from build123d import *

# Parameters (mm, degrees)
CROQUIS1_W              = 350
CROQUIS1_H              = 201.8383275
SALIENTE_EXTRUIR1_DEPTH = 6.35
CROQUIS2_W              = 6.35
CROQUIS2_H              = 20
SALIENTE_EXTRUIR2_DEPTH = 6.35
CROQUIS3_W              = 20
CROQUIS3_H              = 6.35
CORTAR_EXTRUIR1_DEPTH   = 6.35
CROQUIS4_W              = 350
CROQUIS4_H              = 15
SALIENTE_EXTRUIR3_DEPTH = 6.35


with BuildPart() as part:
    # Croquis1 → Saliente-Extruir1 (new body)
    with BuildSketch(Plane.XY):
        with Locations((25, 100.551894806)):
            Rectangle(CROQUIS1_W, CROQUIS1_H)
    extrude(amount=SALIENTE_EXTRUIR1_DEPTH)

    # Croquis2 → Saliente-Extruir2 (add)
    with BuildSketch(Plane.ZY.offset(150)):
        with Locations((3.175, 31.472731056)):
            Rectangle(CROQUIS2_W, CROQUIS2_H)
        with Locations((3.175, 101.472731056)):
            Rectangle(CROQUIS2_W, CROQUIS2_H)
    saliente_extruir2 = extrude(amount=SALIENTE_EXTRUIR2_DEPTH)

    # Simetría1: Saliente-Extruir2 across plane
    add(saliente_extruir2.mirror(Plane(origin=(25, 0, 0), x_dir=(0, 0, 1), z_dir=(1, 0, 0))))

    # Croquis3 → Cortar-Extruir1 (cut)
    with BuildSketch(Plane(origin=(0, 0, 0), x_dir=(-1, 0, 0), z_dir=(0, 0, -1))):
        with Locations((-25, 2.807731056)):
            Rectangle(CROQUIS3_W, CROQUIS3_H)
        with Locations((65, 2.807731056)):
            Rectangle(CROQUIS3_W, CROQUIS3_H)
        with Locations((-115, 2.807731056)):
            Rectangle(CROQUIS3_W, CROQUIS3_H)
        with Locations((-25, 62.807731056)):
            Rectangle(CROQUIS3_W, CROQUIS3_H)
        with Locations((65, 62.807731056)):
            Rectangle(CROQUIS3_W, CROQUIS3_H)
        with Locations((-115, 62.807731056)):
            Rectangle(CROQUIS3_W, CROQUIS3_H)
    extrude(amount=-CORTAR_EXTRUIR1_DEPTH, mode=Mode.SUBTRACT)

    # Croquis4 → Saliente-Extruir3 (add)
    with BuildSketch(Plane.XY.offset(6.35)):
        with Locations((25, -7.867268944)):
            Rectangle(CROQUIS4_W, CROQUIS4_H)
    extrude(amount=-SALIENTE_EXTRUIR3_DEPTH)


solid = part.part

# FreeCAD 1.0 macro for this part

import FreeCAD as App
import Part
import Sketcher

V = App.Vector
Q = App.Units.Quantity

doc = App.newDocument("Part")
params = doc.addObject("Spreadsheet::Sheet", "Params")
for row, (alias, value) in enumerate([
    ("sketch1_width", "350 mm"),
    ("pad1_length", "6.35 mm"),
    ("sketch2_width", "20 mm"),
    ("sketch2_height", "6.35 mm"),
    ("pad2_length", "6.35 mm"),
    ("sketch3_width", "20 mm"),
    ("sketch3_height", "6.35 mm"),
    ("pocket1_length", "6.35 mm"),
    ("sketch4_width", "350 mm"),
    ("sketch4_height", "15 mm"),
    ("pad3_length", "6.35 mm"),
], start=1):
    params.set(f"A{row}", alias)
    params.set(f"B{row}", "=" + value)
    params.setAlias(f"B{row}", alias)

body = doc.addObject("PartDesign::Body", "Body")

# Sketch on XY plane
sketch1 = body.newObject("Sketcher::SketchObject", "Sketch")
sketch1.AttachmentSupport = (doc.getObject("XY_Plane"), [""])
sketch1.MapMode = "FlatFace"
sketch1.addGeometry(Part.LineSegment(V(-150, 201, 0), V(-150, 0, 0)), False)
sketch1.addGeometry(Part.LineSegment(V(-150, 0, 0), V(200, 0, 0)), False)
sketch1.addGeometry(Part.LineSegment(V(200, 0, 0), V(200, 201, 0)), False)
sketch1.addGeometry(Part.LineSegment(V(200, 201, 0), V(-150, 201, 0)), False)
sketch1.addConstraint(Sketcher.Constraint("Coincident", 0, 2, 1, 1))
sketch1.addConstraint(Sketcher.Constraint("Coincident", 1, 2, 2, 1))
sketch1.addConstraint(Sketcher.Constraint("Coincident", 2, 2, 3, 1))
sketch1.addConstraint(Sketcher.Constraint("Coincident", 3, 2, 0, 1))
sketch1.addConstraint(Sketcher.Constraint("Vertical", 0))
sketch1.addConstraint(Sketcher.Constraint("Horizontal", 1))
sketch1.addConstraint(Sketcher.Constraint("Vertical", 2))
sketch1.addConstraint(Sketcher.Constraint("Horizontal", 3))
sketch1.addConstraint(Sketcher.Constraint("DistanceX", 1, 1, 1, 2, Q("350 mm")))
sketch1.addConstraint(Sketcher.Constraint("DistanceX", 0, 2, -1, 1, Q("150 mm")))
sketch1.addConstraint(Sketcher.Constraint("DistanceY", 0, 2, 0, 1, Q("201.838327 mm")))
sketch1.addConstraint(Sketcher.Constraint("DistanceY", 0, 2, -1, 1, Q("0.367269 mm")))
sketch1.setExpression("Constraints[8]", "Params.sketch1_width")
pad1 = body.newObject("PartDesign::Pad", "Pad")
pad1.Profile = sketch1
pad1.setExpression("Length", "Params.pad1_length")

# Sketch on YZ plane
sketch2 = body.newObject("Sketcher::SketchObject", "Sketch001")
sketch2.AttachmentSupport = (doc.getObject("YZ_Plane"), [""])
sketch2.MapMode = "FlatFace"
sketch2.AttachmentOffset = App.Placement(V(0, 0, -150), App.Rotation())
sketch2.addGeometry(Part.LineSegment(V(41, 0, 0), V(21, 0, 0)), False)
sketch2.addGeometry(Part.LineSegment(V(21, 0, 0), V(21, 6, 0)), False)
sketch2.addGeometry(Part.LineSegment(V(21, 6, 0), V(41, 6, 0)), False)
sketch2.addGeometry(Part.LineSegment(V(41, 6, 0), V(41, 0, 0)), False)
sketch2.addGeometry(Part.LineSegment(V(111, 0, 0), V(91, 0, 0)), False)
sketch2.addGeometry(Part.LineSegment(V(91, 0, 0), V(91, 6, 0)), False)
sketch2.addGeometry(Part.LineSegment(V(91, 6, 0), V(111, 6, 0)), False)
sketch2.addGeometry(Part.LineSegment(V(111, 6, 0), V(111, 0, 0)), False)
sketch2.addConstraint(Sketcher.Constraint("Coincident", 0, 2, 1, 1))
sketch2.addConstraint(Sketcher.Constraint("Coincident", 1, 2, 2, 1))
sketch2.addConstraint(Sketcher.Constraint("Coincident", 2, 2, 3, 1))
sketch2.addConstraint(Sketcher.Constraint("Coincident", 3, 2, 0, 1))
sketch2.addConstraint(Sketcher.Constraint("Coincident", 4, 2, 5, 1))
sketch2.addConstraint(Sketcher.Constraint("Coincident", 5, 2, 6, 1))
sketch2.addConstraint(Sketcher.Constraint("Coincident", 6, 2, 7, 1))
sketch2.addConstraint(Sketcher.Constraint("Coincident", 7, 2, 4, 1))
sketch2.addConstraint(Sketcher.Constraint("Horizontal", 0))
sketch2.addConstraint(Sketcher.Constraint("Vertical", 1))
sketch2.addConstraint(Sketcher.Constraint("Horizontal", 2))
sketch2.addConstraint(Sketcher.Constraint("Vertical", 3))
sketch2.addConstraint(Sketcher.Constraint("Horizontal", 4))
sketch2.addConstraint(Sketcher.Constraint("Vertical", 5))
sketch2.addConstraint(Sketcher.Constraint("Horizontal", 6))
sketch2.addConstraint(Sketcher.Constraint("Vertical", 7))
sketch2.addConstraint(Sketcher.Constraint("PointOnObject", 0, 2, -1))
sketch2.addConstraint(Sketcher.Constraint("PointOnObject", 4, 2, -1))
sketch2.addConstraint(Sketcher.Constraint("Horizontal", 2, 2, 5, 2))
sketch2.addConstraint(Sketcher.Constraint("Equal", 2, 4))
sketch2.addConstraint(Sketcher.Constraint("DistanceX", 0, 2, 0, 1, Q("20 mm")))
sketch2.addConstraint(Sketcher.Constraint("DistanceX", 3, 2, 4, 2, Q("50 mm")))
sketch2.addConstraint(Sketcher.Constraint("DistanceY", 1, 1, 1, 2, Q("6.35 mm")))
sketch2.addConstraint(Sketcher.Constraint("DistanceX", -1, 1, 0, 2, Q("21.472731 mm")))
sketch2.setExpression("Constraints[20]", "Params.sketch2_width")
sketch2.setExpression("Constraints[22]", "Params.sketch2_height")
pad2 = body.newObject("PartDesign::Pad", "Pad001")
pad2.Profile = sketch2
pad2.setExpression("Length", "Params.pad2_length")
pad2.Reversed = True
doc.recompute()

datumplane = body.newObject("PartDesign::Plane", "DatumPlane")
datumplane.AttachmentSupport = (doc.getObject("YZ_Plane"), [""])
datumplane.MapMode = "FlatFace"
datumplane.AttachmentOffset = App.Placement(V(0, 0, 25), App.Rotation())
mirrored = body.newObject("PartDesign::Mirrored", "Mirrored")
mirrored.Originals = [pad2]
mirrored.MirrorPlane = (datumplane, [""])
body.Tip = mirrored

# Sketch on XY plane
sketch3 = body.newObject("Sketcher::SketchObject", "Sketch002")
sketch3.AttachmentSupport = (doc.getObject("XY_Plane"), [""])
sketch3.MapMode = "FlatFace"
sketch3.addGeometry(Part.LineSegment(V(35, 6, 0), V(35, 0, 0)), False)
sketch3.addGeometry(Part.LineSegment(V(35, 0, 0), V(15, 0, 0)), False)
sketch3.addGeometry(Part.LineSegment(V(15, 0, 0), V(15, 6, 0)), False)
sketch3.addGeometry(Part.LineSegment(V(15, 6, 0), V(35, 6, 0)), False)
sketch3.addGeometry(Part.LineSegment(V(-55, 6, 0), V(-55, 0, 0)), False)
sketch3.addGeometry(Part.LineSegment(V(-55, 0, 0), V(-75, 0, 0)), False)
sketch3.addGeometry(Part.LineSegment(V(-75, 0, 0), V(-75, 6, 0)), False)
sketch3.addGeometry(Part.LineSegment(V(-75, 6, 0), V(-55, 6, 0)), False)
sketch3.addGeometry(Part.LineSegment(V(125, 6, 0), V(125, 0, 0)), False)
sketch3.addGeometry(Part.LineSegment(V(125, 0, 0), V(105, 0, 0)), False)
sketch3.addGeometry(Part.LineSegment(V(105, 0, 0), V(105, 6, 0)), False)
sketch3.addGeometry(Part.LineSegment(V(105, 6, 0), V(125, 6, 0)), False)
sketch3.addGeometry(Part.LineSegment(V(35, 66, 0), V(35, 60, 0)), False)
sketch3.addGeometry(Part.LineSegment(V(35, 60, 0), V(15, 60, 0)), False)
sketch3.addGeometry(Part.LineSegment(V(15, 60, 0), V(15, 66, 0)), False)
sketch3.addGeometry(Part.LineSegment(V(15, 66, 0), V(35, 66, 0)), False)
sketch3.addGeometry(Part.LineSegment(V(-55, 66, 0), V(-55, 60, 0)), False)
sketch3.addGeometry(Part.LineSegment(V(-55, 60, 0), V(-75, 60, 0)), False)
sketch3.addGeometry(Part.LineSegment(V(-75, 60, 0), V(-75, 66, 0)), False)
sketch3.addGeometry(Part.LineSegment(V(-75, 66, 0), V(-55, 66, 0)), False)
sketch3.addGeometry(Part.LineSegment(V(125, 66, 0), V(125, 60, 0)), False)
sketch3.addGeometry(Part.LineSegment(V(125, 60, 0), V(105, 60, 0)), False)
sketch3.addGeometry(Part.LineSegment(V(105, 60, 0), V(105, 66, 0)), False)
sketch3.addGeometry(Part.LineSegment(V(105, 66, 0), V(125, 66, 0)), False)
sketch3.addConstraint(Sketcher.Constraint("Coincident", 0, 2, 1, 1))
sketch3.addConstraint(Sketcher.Constraint("Coincident", 1, 2, 2, 1))
sketch3.addConstraint(Sketcher.Constraint("Coincident", 2, 2, 3, 1))
sketch3.addConstraint(Sketcher.Constraint("Coincident", 3, 2, 0, 1))
sketch3.addConstraint(Sketcher.Constraint("Coincident", 4, 2, 5, 1))
sketch3.addConstraint(Sketcher.Constraint("Coincident", 5, 2, 6, 1))
sketch3.addConstraint(Sketcher.Constraint("Coincident", 6, 2, 7, 1))
sketch3.addConstraint(Sketcher.Constraint("Coincident", 7, 2, 4, 1))
sketch3.addConstraint(Sketcher.Constraint("Coincident", 8, 2, 9, 1))
sketch3.addConstraint(Sketcher.Constraint("Coincident", 9, 2, 10, 1))
sketch3.addConstraint(Sketcher.Constraint("Coincident", 10, 2, 11, 1))
sketch3.addConstraint(Sketcher.Constraint("Coincident", 11, 2, 8, 1))
sketch3.addConstraint(Sketcher.Constraint("Coincident", 12, 2, 13, 1))
sketch3.addConstraint(Sketcher.Constraint("Coincident", 13, 2, 14, 1))
sketch3.addConstraint(Sketcher.Constraint("Coincident", 14, 2, 15, 1))
sketch3.addConstraint(Sketcher.Constraint("Coincident", 15, 2, 12, 1))
sketch3.addConstraint(Sketcher.Constraint("Coincident", 16, 2, 17, 1))
sketch3.addConstraint(Sketcher.Constraint("Coincident", 17, 2, 18, 1))
sketch3.addConstraint(Sketcher.Constraint("Coincident", 18, 2, 19, 1))
sketch3.addConstraint(Sketcher.Constraint("Coincident", 19, 2, 16, 1))
sketch3.addConstraint(Sketcher.Constraint("Coincident", 20, 2, 21, 1))
sketch3.addConstraint(Sketcher.Constraint("Coincident", 21, 2, 22, 1))
sketch3.addConstraint(Sketcher.Constraint("Coincident", 22, 2, 23, 1))
sketch3.addConstraint(Sketcher.Constraint("Coincident", 23, 2, 20, 1))
sketch3.addConstraint(Sketcher.Constraint("Vertical", 0))
sketch3.addConstraint(Sketcher.Constraint("Horizontal", 1))
sketch3.addConstraint(Sketcher.Constraint("Vertical", 2))
sketch3.addConstraint(Sketcher.Constraint("Horizontal", 3))
sketch3.addConstraint(Sketcher.Constraint("Vertical", 4))
sketch3.addConstraint(Sketcher.Constraint("Horizontal", 5))
sketch3.addConstraint(Sketcher.Constraint("Vertical", 6))
sketch3.addConstraint(Sketcher.Constraint("Horizontal", 7))
sketch3.addConstraint(Sketcher.Constraint("Vertical", 8))
sketch3.addConstraint(Sketcher.Constraint("Horizontal", 9))
sketch3.addConstraint(Sketcher.Constraint("Vertical", 10))
sketch3.addConstraint(Sketcher.Constraint("Horizontal", 11))
sketch3.addConstraint(Sketcher.Constraint("Vertical", 12))
sketch3.addConstraint(Sketcher.Constraint("Horizontal", 13))
sketch3.addConstraint(Sketcher.Constraint("Vertical", 14))
sketch3.addConstraint(Sketcher.Constraint("Horizontal", 15))
sketch3.addConstraint(Sketcher.Constraint("Vertical", 16))
sketch3.addConstraint(Sketcher.Constraint("Horizontal", 17))
sketch3.addConstraint(Sketcher.Constraint("Vertical", 18))
sketch3.addConstraint(Sketcher.Constraint("Horizontal", 19))
sketch3.addConstraint(Sketcher.Constraint("Vertical", 20))
sketch3.addConstraint(Sketcher.Constraint("Horizontal", 21))
sketch3.addConstraint(Sketcher.Constraint("Vertical", 22))
sketch3.addConstraint(Sketcher.Constraint("Horizontal", 23))
sketch3.addConstraint(Sketcher.Constraint("Horizontal", 1, 2, 4, 2))
sketch3.addConstraint(Sketcher.Constraint("Horizontal", 3, 2, 6, 2))
sketch3.addConstraint(Sketcher.Constraint("Horizontal", 5, 2, 8, 2))
sketch3.addConstraint(Sketcher.Constraint("Horizontal", 7, 2, 10, 2))
sketch3.addConstraint(Sketcher.Constraint("Horizontal", 13, 2, 16, 2))
sketch3.addConstraint(Sketcher.Constraint("Horizontal", 15, 2, 18, 2))
sketch3.addConstraint(Sketcher.Constraint("Horizontal", 17, 2, 20, 2))
sketch3.addConstraint(Sketcher.Constraint("Horizontal", 19, 2, 22, 2))
sketch3.addConstraint(Sketcher.Constraint("Vertical", 3, 2, 12, 2))
sketch3.addConstraint(Sketcher.Constraint("Vertical", 2, 2, 13, 2))
sketch3.addConstraint(Sketcher.Constraint("Vertical", 7, 2, 16, 2))
sketch3.addConstraint(Sketcher.Constraint("Vertical", 6, 2, 17, 2))
sketch3.addConstraint(Sketcher.Constraint("Vertical", 11, 2, 20, 2))
sketch3.addConstraint(Sketcher.Constraint("Vertical", 10, 2, 21, 2))
sketch3.addConstraint(Sketcher.Constraint("Equal", 3, 5))
sketch3.addConstraint(Sketcher.Constraint("Equal", 7, 9))
sketch3.addConstraint(Sketcher.Constraint("Equal", 10, 12))
sketch3.addConstraint(Sketcher.Constraint("DistanceX", 1, 2, 1, 1, Q("20 mm")))
sketch3.addConstraint(Sketcher.Constraint("DistanceX", -1, 1, 0, 2, Q("35 mm")))
sketch3.addConstraint(Sketcher.Constraint("DistanceX", 4, 2, -1, 1, Q("55 mm")))
sketch3.addConstraint(Sketcher.Constraint("DistanceX", -1, 1, 8, 2, Q("125 mm")))
sketch3.addConstraint(Sketcher.Constraint("DistanceY", 0, 2, 12, 2, Q("60 mm")))
sketch3.addConstraint(Sketcher.Constraint("DistanceY", 0, 2, 0, 1, Q("6.35 mm")))
sketch3.addConstraint(Sketcher.Constraint("DistanceY", 0, 2, -1, 1, Q("0.367269 mm")))
sketch3.setExpression("Constraints[65]", "Params.sketch3_width")
sketch3.setExpression("Constraints[70]", "Params.sketch3_height")
pocket1 = body.newObject("PartDesign::Pocket", "Pocket")
pocket1.Profile = sketch3
pocket1.setExpression("Length", "Params.pocket1_length")
pocket1.Reversed = True

# Sketch on XY plane
sketch4 = body.newObject("Sketcher::SketchObject", "Sketch003")
sketch4.AttachmentSupport = (doc.getObject("XY_Plane"), [""])
sketch4.MapMode = "FlatFace"
sketch4.AttachmentOffset = App.Placement(V(0, 0, 6.35), App.Rotation())
sketch4.addGeometry(Part.LineSegment(V(-150, 0, 0), V(-150, -15, 0)), False)
sketch4.addGeometry(Part.LineSegment(V(-150, -15, 0), V(200, -15, 0)), False)
sketch4.addGeometry(Part.LineSegment(V(200, -15, 0), V(200, 0, 0)), False)
sketch4.addGeometry(Part.LineSegment(V(200, 0, 0), V(-150, 0, 0)), False)
sketch4.addConstraint(Sketcher.Constraint("Coincident", 0, 2, 1, 1))
sketch4.addConstraint(Sketcher.Constraint("Coincident", 1, 2, 2, 1))
sketch4.addConstraint(Sketcher.Constraint("Coincident", 2, 2, 3, 1))
sketch4.addConstraint(Sketcher.Constraint("Coincident", 3, 2, 0, 1))
sketch4.addConstraint(Sketcher.Constraint("Vertical", 0))
sketch4.addConstraint(Sketcher.Constraint("Horizontal", 1))
sketch4.addConstraint(Sketcher.Constraint("Vertical", 2))
sketch4.addConstraint(Sketcher.Constraint("Horizontal", 3))
sketch4.addConstraint(Sketcher.Constraint("DistanceX", 1, 1, 1, 2, Q("350 mm")))
sketch4.addConstraint(Sketcher.Constraint("DistanceY", 0, 2, 0, 1, Q("15 mm")))
sketch4.addConstraint(Sketcher.Constraint("DistanceX", 0, 2, -1, 1, Q("150 mm")))
sketch4.addConstraint(Sketcher.Constraint("DistanceY", 0, 2, -1, 1, Q("15.367269 mm")))
sketch4.setExpression("Constraints[8]", "Params.sketch4_width")
sketch4.setExpression("Constraints[9]", "Params.sketch4_height")
pad3 = body.newObject("PartDesign::Pad", "Pad002")
pad3.Profile = sketch4
pad3.setExpression("Length", "Params.pad3_length")
pad3.Reversed = True

doc.recompute()
